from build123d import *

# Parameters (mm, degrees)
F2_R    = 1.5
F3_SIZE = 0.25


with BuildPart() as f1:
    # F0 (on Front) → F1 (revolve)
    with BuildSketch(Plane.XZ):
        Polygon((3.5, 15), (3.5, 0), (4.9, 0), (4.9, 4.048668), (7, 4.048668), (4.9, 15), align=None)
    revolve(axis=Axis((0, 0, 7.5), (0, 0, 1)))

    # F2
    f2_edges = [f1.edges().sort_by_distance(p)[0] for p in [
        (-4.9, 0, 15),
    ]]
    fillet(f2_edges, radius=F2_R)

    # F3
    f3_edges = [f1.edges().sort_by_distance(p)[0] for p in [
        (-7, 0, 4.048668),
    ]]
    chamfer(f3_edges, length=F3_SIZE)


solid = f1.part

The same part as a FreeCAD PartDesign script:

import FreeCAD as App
import Part
import Sketcher
from FreeCAD import Vector
Q = App.Units.Quantity


def edges_at(feature, points):
    """Names of the edges that pass closest to the given points."""
    edges = feature.Shape.Edges
    near = lambda p: min(range(len(edges)), key=lambda i: edges[i].distToShape(Part.Vertex(*p))[0])
    return sorted({f"Edge{near(p) + 1}" for p in points})


def add_polygon(sketch, points):
    """Adds a closed chain of lines whose ends are joined by coincident constraints."""
    first, n = sketch.GeometryCount, len(points)
    for a, b in zip(points, points[1:] + points[:1]):
        sketch.addGeometry(Part.LineSegment(App.Vector(*a, 0), App.Vector(*b, 0)), False)
    for i in range(n):
        sketch.addConstraint(Sketcher.Constraint("Coincident", first + i, 2, first + (i + 1) % n, 1))

doc = App.newDocument("Part")
params = doc.addObject("Spreadsheet::Sheet", "Params")
for row, (alias, value) in enumerate([
    ("sketch1_height", "15 mm"),
    ("sketch1_width", "1.4 mm"),
    ("sketch1_width2", "2.1 mm"),
    ("revolution_angle", "360 deg"),
    ("fillet_radius", "1.5 mm"),
    ("chamfer_size", "0.25 mm"),
], start=1):
    params.set(f"A{row}", alias)
    params.set(f"B{row}", "=" + value)
    params.setAlias(f"B{row}", alias)

body = doc.addObject("PartDesign::Body", "Body")

# Sketch on XZ plane
sketch1 = body.newObject("Sketcher::SketchObject", "Sketch")
sketch1.AttachmentSupport = (doc.getObject("XZ_Plane"), [""])
sketch1.MapMode = "FlatFace"
add_polygon(sketch1, [(3.5, 15), (3.5, 0), (4.9, 0), (4.9, 4), (7, 4), (4.9, 15)])  # lines 0-5
sketch1.addConstraint([
    Sketcher.Constraint("Vertical", 0),
    Sketcher.Constraint("Horizontal", 1),
    Sketcher.Constraint("Vertical", 2),
    Sketcher.Constraint("Horizontal", 3),
    Sketcher.Constraint("Horizontal", 5),
    Sketcher.Constraint("PointOnObject", 0, 2, -1),
    Sketcher.Constraint("Vertical", 2, 2, 4, 2),
    Sketcher.Constraint("DistanceY", 0, 2, 0, 1, Q("15 mm")),
    Sketcher.Constraint("DistanceX", 1, 1, 1, 2, Q("1.4 mm")),
    Sketcher.Constraint("DistanceX", 3, 1, 3, 2, Q("2.1 mm")),
    Sketcher.Constraint("DistanceX", -1, 1, 3, 2, Q("7 mm")),
    Sketcher.Constraint("Distance", 4, Q("11.15086 mm")),
])
sketch1.setExpression("Constraints[13]", "Params.sketch1_height")
sketch1.setExpression("Constraints[14]", "Params.sketch1_width")
sketch1.setExpression("Constraints[15]", "Params.sketch1_width2")
revolution = body.newObject("PartDesign::Revolution", "Revolution")
revolution.Profile = sketch1
revolution.ReferenceAxis = (sketch1, ["V_Axis"])
revolution.setExpression("Angle", "Params.revolution_angle")
doc.recompute()

fillet = body.newObject("PartDesign::Fillet", "Fillet")
fillet.Base = (revolution, edges_at(revolution, [(-4.9, 0, 15)]))
fillet.setExpression("Radius", "Params.fillet_radius")
doc.recompute()

chamfer = body.newObject("PartDesign::Chamfer", "Chamfer")
chamfer.Base = (fillet, edges_at(fillet, [(-7, 0, 4.049)]))
chamfer.setExpression("Size", "Params.chamfer_size")

doc.recompute()
